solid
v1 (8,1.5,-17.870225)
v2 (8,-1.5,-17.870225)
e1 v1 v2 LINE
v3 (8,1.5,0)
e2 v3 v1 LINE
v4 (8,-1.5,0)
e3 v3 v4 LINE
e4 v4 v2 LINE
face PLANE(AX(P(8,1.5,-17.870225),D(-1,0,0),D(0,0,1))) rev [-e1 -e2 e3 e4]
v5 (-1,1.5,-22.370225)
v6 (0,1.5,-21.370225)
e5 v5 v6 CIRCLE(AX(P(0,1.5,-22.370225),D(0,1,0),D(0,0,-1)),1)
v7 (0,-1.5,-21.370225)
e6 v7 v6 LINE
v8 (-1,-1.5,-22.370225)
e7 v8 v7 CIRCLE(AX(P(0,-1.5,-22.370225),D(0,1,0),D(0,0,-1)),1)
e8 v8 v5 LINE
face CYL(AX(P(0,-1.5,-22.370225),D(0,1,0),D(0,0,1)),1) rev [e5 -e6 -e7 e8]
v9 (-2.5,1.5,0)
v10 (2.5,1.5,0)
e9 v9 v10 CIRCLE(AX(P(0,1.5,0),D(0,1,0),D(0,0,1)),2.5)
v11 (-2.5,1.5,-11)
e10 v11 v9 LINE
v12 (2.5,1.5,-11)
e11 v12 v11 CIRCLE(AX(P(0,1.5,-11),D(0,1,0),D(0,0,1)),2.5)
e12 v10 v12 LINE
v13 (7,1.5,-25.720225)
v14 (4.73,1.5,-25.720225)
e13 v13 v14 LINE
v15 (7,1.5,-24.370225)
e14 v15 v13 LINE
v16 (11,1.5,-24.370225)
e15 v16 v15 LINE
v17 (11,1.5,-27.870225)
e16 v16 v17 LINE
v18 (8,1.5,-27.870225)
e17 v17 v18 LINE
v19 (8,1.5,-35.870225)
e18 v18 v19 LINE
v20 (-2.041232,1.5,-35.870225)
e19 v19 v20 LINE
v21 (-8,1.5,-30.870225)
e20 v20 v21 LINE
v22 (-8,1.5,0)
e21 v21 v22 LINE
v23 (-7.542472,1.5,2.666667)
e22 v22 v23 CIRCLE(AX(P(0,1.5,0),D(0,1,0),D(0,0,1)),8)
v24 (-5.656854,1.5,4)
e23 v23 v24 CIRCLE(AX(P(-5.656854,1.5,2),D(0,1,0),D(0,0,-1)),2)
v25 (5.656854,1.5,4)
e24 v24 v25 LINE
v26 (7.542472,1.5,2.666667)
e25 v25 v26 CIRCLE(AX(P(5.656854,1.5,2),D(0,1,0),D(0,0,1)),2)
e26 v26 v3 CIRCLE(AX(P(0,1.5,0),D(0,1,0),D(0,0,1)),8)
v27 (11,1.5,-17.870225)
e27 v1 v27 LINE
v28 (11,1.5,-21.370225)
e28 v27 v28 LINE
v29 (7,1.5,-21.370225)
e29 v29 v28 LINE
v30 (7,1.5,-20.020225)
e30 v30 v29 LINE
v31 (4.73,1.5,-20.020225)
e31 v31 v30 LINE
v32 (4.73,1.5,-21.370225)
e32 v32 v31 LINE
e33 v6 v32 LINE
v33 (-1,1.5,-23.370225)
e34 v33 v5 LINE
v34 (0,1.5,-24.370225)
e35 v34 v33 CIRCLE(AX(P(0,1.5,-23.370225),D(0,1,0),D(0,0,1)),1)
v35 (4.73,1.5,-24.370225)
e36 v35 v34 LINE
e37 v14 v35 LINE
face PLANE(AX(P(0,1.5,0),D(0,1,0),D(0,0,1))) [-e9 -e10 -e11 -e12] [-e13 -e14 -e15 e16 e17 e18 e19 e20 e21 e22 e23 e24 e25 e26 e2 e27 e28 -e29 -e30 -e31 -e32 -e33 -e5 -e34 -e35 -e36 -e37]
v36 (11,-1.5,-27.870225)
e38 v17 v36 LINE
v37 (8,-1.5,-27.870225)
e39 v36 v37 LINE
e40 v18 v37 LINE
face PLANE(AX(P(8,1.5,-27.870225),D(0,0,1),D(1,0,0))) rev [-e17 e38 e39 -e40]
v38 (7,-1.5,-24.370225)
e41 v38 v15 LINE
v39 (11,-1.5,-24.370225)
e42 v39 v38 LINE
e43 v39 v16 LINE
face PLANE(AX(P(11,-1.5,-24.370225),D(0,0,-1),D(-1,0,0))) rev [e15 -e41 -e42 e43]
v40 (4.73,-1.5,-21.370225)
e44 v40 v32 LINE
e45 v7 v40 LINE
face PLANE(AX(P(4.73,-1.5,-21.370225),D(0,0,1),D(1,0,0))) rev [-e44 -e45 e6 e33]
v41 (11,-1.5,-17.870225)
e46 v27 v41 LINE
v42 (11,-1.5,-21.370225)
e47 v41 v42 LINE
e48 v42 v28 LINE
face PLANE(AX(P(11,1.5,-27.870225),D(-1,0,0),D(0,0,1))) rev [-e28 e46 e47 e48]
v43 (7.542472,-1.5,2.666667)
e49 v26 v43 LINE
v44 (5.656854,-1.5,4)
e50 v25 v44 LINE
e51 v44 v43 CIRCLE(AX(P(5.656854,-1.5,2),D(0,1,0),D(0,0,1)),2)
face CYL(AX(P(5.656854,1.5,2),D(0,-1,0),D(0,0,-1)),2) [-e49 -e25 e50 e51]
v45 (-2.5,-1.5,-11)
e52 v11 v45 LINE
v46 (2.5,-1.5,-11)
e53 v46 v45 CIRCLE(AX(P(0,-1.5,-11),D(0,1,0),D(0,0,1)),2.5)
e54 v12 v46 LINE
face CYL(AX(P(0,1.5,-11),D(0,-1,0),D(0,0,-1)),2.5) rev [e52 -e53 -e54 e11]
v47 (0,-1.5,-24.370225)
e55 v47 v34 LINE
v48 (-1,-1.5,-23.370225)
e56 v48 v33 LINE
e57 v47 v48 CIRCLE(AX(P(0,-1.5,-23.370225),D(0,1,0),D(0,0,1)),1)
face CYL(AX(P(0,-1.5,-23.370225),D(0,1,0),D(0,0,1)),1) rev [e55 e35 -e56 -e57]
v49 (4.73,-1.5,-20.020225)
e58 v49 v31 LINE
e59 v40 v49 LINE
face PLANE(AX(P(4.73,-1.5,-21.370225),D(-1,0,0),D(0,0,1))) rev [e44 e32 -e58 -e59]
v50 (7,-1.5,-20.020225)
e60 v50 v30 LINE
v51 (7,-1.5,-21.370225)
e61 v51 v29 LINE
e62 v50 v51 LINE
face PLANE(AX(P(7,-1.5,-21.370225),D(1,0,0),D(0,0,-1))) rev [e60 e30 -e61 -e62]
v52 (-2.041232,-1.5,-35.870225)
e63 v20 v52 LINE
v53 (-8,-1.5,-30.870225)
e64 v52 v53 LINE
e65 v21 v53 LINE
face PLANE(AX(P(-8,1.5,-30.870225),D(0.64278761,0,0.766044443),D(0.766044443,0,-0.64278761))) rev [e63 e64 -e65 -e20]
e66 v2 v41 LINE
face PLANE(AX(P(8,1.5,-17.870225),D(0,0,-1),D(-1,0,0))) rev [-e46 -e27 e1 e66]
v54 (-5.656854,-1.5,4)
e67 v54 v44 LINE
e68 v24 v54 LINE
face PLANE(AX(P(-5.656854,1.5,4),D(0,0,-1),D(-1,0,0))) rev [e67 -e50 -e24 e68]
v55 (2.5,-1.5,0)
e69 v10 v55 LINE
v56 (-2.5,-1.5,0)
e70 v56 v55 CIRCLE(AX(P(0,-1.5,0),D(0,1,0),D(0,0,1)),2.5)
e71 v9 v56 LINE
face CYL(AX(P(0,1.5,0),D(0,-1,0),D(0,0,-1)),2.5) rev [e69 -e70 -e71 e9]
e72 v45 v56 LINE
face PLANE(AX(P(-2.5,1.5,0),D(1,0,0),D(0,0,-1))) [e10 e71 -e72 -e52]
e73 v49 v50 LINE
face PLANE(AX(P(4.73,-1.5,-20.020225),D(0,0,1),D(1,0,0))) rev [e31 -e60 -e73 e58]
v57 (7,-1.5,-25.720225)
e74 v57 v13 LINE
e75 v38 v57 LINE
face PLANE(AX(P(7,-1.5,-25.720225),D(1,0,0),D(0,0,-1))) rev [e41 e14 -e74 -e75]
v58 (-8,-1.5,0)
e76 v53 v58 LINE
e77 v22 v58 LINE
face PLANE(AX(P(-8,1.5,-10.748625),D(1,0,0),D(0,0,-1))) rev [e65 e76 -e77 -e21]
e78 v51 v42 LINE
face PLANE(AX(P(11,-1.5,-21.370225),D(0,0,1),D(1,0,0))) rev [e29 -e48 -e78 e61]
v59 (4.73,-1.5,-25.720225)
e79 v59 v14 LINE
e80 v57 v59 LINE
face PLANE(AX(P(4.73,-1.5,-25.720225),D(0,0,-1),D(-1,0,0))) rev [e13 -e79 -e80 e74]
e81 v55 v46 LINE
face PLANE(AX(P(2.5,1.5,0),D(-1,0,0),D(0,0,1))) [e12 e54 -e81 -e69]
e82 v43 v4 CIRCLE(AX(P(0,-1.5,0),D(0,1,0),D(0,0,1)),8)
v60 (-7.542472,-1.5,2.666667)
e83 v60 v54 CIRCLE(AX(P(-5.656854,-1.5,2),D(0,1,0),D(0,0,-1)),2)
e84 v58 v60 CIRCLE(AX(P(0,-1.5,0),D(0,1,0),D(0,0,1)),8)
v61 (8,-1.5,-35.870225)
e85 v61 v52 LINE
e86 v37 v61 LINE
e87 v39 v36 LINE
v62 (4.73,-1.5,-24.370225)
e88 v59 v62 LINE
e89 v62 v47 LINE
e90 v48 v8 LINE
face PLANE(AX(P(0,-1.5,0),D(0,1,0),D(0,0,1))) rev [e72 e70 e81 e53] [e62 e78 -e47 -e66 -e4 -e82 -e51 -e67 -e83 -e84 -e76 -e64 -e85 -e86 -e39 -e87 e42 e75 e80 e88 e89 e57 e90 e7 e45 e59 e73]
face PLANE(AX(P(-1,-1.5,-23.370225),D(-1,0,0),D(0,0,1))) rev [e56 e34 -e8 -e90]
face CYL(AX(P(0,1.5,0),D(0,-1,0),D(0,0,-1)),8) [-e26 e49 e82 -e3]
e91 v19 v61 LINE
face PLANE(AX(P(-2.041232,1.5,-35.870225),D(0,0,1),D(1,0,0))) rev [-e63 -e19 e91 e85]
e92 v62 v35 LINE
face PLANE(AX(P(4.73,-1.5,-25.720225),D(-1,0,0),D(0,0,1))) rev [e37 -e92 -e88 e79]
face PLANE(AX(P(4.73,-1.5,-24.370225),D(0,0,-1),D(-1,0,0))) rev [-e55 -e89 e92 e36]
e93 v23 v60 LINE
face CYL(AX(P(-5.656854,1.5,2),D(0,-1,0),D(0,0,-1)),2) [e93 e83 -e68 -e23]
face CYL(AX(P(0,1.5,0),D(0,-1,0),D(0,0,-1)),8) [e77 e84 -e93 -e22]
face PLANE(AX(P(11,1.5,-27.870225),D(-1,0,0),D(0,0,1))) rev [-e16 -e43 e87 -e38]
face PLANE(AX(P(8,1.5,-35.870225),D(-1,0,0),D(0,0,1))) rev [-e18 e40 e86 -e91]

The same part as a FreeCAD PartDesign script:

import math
import FreeCAD as App
import Part
import Sketcher
Q = App.Units.Quantity

doc = App.newDocument("Part")
body = doc.addObject("PartDesign::Body", "Body")

# Sketch on XZ plane
sketch1 = doc.addObject("Sketcher::SketchObject", "Sketch")
body.addObject(sketch1)
sketch1.AttachmentSupport = (doc.XZ_Plane, [""])
sketch1.MapMode = "FlatFace"
sketch1.addGeometry([
    Part.LineSegment(App.Vector(-2, -35.9, 0), App.Vector(-8, -30.9, 0)),  # 0
    Part.LineSegment(App.Vector(-8, -30.9, 0), App.Vector(-8, 0, 0)),  # 1
    Part.ArcOfCircle(Part.Circle(App.Vector(0, 0, 0), App.Vector(0, 0, 1), 8), math.radians(160.53), math.radians(180)),  # 2
    Part.ArcOfCircle(Part.Circle(App.Vector(-5.7, 2, 0), App.Vector(0, 0, 1), 2), math.radians(90), math.radians(161)),  # 3
    Part.LineSegment(App.Vector(-5.7, 4, 0), App.Vector(5.7, 4, 0)),  # 4
    Part.ArcOfCircle(Part.Circle(App.Vector(5.7, 2, 0), App.Vector(0, 0, 1), 2), math.radians(19), math.radians(90)),  # 5
    Part.ArcOfCircle(Part.Circle(App.Vector(0, 0, 0), App.Vector(0, 0, 1), 8), math.radians(0), math.radians(19.47)),  # 6
    Part.LineSegment(App.Vector(8, 0, 0), App.Vector(8, -17.9, 0)),  # 7
    Part.LineSegment(App.Vector(8, -17.9, 0), App.Vector(11, -17.9, 0)),  # 8
    Part.LineSegment(App.Vector(11, -17.9, 0), App.Vector(11, -27.9, 0)),  # 9
    Part.LineSegment(App.Vector(11, -27.9, 0), App.Vector(8, -27.9, 0)),  # 10
    Part.LineSegment(App.Vector(8, -27.9, 0), App.Vector(8, -35.9, 0)),  # 11
    Part.LineSegment(App.Vector(8, -35.9, 0), App.Vector(-2, -35.9, 0)),  # 12
    Part.LineSegment(App.Vector(-2.5, 0, 0), App.Vector(-2.5, -11, 0)),  # 13
    Part.ArcOfCircle(Part.Circle(App.Vector(0, -11, 0), App.Vector(0, 0, 1), 2.5), math.radians(180), math.radians(360)),  # 14
    Part.LineSegment(App.Vector(2.5, -11, 0), App.Vector(2.5, 0, 0)),  # 15
    Part.ArcOfCircle(Part.Circle(App.Vector(0, 0, 0), App.Vector(0, 0, 1), 2.5), math.radians(0), math.radians(180)),  # 16
], False)
sketch1.addConstraint([
    Sketcher.Constraint("Coincident", 0, 2, 1, 1),
    Sketcher.Constraint("Tangent", 1, 2, 2, 2),
    Sketcher.Constraint("Tangent", 2, 1, 3, 2),
    Sketcher.Constraint("Tangent", 3, 1, 4, 1),
    Sketcher.Constraint("Tangent", 4, 2, 5, 2),
    Sketcher.Constraint("Tangent", 5, 1, 6, 2),
    Sketcher.Constraint("Tangent", 6, 1, 7, 1),
    Sketcher.Constraint("Coincident", 7, 2, 8, 1),
    Sketcher.Constraint("Coincident", 8, 2, 9, 1),
    Sketcher.Constraint("Coincident", 9, 2, 10, 1),
    Sketcher.Constraint("Coincident", 10, 2, 11, 1),
    Sketcher.Constraint("Coincident", 11, 2, 12, 1),
    Sketcher.Constraint("Coincident", 12, 2, 0, 1),
    Sketcher.Constraint("Tangent", 13, 2, 14, 1),
    Sketcher.Constraint("Tangent", 14, 2, 15, 1),
    Sketcher.Constraint("Tangent", 15, 2, 16, 1),
    Sketcher.Constraint("Tangent", 16, 2, 13, 1),
    Sketcher.Constraint("Vertical", 1),
    Sketcher.Constraint("Horizontal", 4),
    Sketcher.Constraint("Vertical", 7),
    Sketcher.Constraint("Horizontal", 8),
    Sketcher.Constraint("Vertical", 9),
    Sketcher.Constraint("Horizontal", 10),
    Sketcher.Constraint("Vertical", 11),
    Sketcher.Constraint("Horizontal", 12),
    Sketcher.Constraint("Vertical", 13),
    Sketcher.Constraint("Vertical", 15),
    Sketcher.Constraint("Coincident", 2, 3, -1, 1),
    Sketcher.Constraint("Coincident", 6, 3, -1, 1),
    Sketcher.Constraint("Coincident", 16, 3, -1, 1),
    Sketcher.Constraint("Equal", 3, 5),
    Sketcher.Constraint("Equal", 2, 6),
    Sketcher.Constraint("Vertical", 7, 2, 10, 2),
    Sketcher.Constraint("Radius", 2, Q("8 mm")),
    Sketcher.Constraint("Radius", 3, Q("2 mm")),
    Sketcher.Constraint("Radius", 14, Q("2.5 mm")),
    Sketcher.Constraint("DistanceX", 8, 1, 8, 2, Q("3 mm")),
    Sketcher.Constraint("DistanceY", 9, 2, 9, 1, Q("10 mm")),
    Sketcher.Constraint("DistanceY", 11, 2, 11, 1, Q("8 mm")),
    Sketcher.Constraint("DistanceY", 13, 2, 13, 1, Q("11 mm")),
    Sketcher.Constraint("Angle", 0, Q("140 deg")),
    Sketcher.Constraint("DistanceY", -1, 1, 3, 3, Q("2 mm")),
    Sketcher.Constraint("DistanceY", 0, 2, 9, 2, Q("3 mm")),
    Sketcher.Constraint("DistanceY", 1, 1, 1, 2, Q("30.870225 mm")),
])
pad1 = doc.addObject("PartDesign::Pad", "Pad")
body.addObject(pad1)
pad1.Profile = sketch1
pad1.Length = 3
pad1.Midplane = True

# Sketch on XZ plane
sketch2 = doc.addObject("Sketcher::SketchObject", "Sketch001")
body.addObject(sketch2)
sketch2.AttachmentSupport = (doc.XZ_Plane, [""])
sketch2.MapMode = "FlatFace"
sketch2.addGeometry([
    Part.LineSegment(App.Vector(11, -24.4, 0), App.Vector(7, -24.4, 0)),  # 0
    Part.LineSegment(App.Vector(7, -24.4, 0), App.Vector(7, -25.7, 0)),  # 1
    Part.LineSegment(App.Vector(7, -25.7, 0), App.Vector(4.7, -25.7, 0)),  # 2
    Part.LineSegment(App.Vector(4.7, -25.7, 0), App.Vector(4.7, -24.4, 0)),  # 3
    Part.LineSegment(App.Vector(4.7, -24.4, 0), App.Vector(0, -24.4, 0)),  # 4
    Part.ArcOfCircle(Part.Circle(App.Vector(0, -23.4, 0), App.Vector(0, 0, 1), 1), math.radians(-180), math.radians(-90)),  # 5
    Part.LineSegment(App.Vector(-1, -23.4, 0), App.Vector(-1, -22.4, 0)),  # 6
    Part.ArcOfCircle(Part.Circle(App.Vector(0, -22.4, 0), App.Vector(0, 0, 1), 1), math.radians(90), math.radians(180)),  # 7
    Part.LineSegment(App.Vector(0, -21.4, 0), App.Vector(4.7, -21.4, 0)),  # 8
    Part.LineSegment(App.Vector(4.7, -21.4, 0), App.Vector(4.7, -20, 0)),  # 9
    Part.LineSegment(App.Vector(4.7, -20, 0), App.Vector(7, -20, 0)),  # 10
    Part.LineSegment(App.Vector(7, -20, 0), App.Vector(7, -21.4, 0)),  # 11
    Part.LineSegment(App.Vector(7, -21.4, 0), App.Vector(11, -21.4, 0)),  # 12
    Part.LineSegment(App.Vector(11, -21.4, 0), App.Vector(11, -24.4, 0)),  # 13
], False)
sketch2.addConstraint([
    Sketcher.Constraint("Coincident", 0, 2, 1, 1),
    Sketcher.Constraint("Coincident", 1, 2, 2, 1),
    Sketcher.Constraint("Coincident", 2, 2, 3, 1),
    Sketcher.Constraint("Coincident", 3, 2, 4, 1),
    Sketcher.Constraint("Tangent", 4, 2, 5, 2),
    Sketcher.Constraint("Tangent", 5, 1, 6, 1),
    Sketcher.Constraint("Tangent", 6, 2, 7, 2),
    Sketcher.Constraint("Tangent", 7, 1, 8, 1),
    Sketcher.Constraint("Coincident", 8, 2, 9, 1),
    Sketcher.Constraint("Coincident", 9, 2, 10, 1),
    Sketcher.Constraint("Coincident", 10, 2, 11, 1),
    Sketcher.Constraint("Coincident", 11, 2, 12, 1),
    Sketcher.Constraint("Coincident", 12, 2, 13, 1),
    Sketcher.Constraint("Coincident", 13, 2, 0, 1),
    Sketcher.Constraint("Horizontal", 0),
    Sketcher.Constraint("Vertical", 1),
    Sketcher.Constraint("Horizontal", 2),
    Sketcher.Constraint("Vertical", 3),
    Sketcher.Constraint("Horizontal", 4),
    Sketcher.Constraint("Vertical", 6),
    Sketcher.Constraint("Horizontal", 8),
    Sketcher.Constraint("Vertical", 9),
    Sketcher.Constraint("Horizontal", 10),
    Sketcher.Constraint("Vertical", 11),
    Sketcher.Constraint("Horizontal", 12),
    Sketcher.Constraint("Vertical", 13),
    Sketcher.Constraint("Equal", 5, 7),
    Sketcher.Constraint("PointOnObject", 5, 3, -2),
    Sketcher.Constraint("Horizontal", 0, 2, 3, 2),
    Sketcher.Constraint("Horizontal", 8, 2, 11, 2),
    Sketcher.Constraint("Vertical", 3, 2, 8, 2),
    Sketcher.Constraint("Vertical", 1, 2, 10, 2),
    Sketcher.Constraint("Equal", 3, 9),
    Sketcher.Constraint("Radius", 5, Q("1 mm")),
    Sketcher.Constraint("DistanceX", 0, 2, 0, 1, Q("4 mm")),
    Sketcher.Constraint("DistanceY", 6, 1, 6, 2, Q("1 mm")),
    Sketcher.Constraint("DistanceX", -1, 1, 0, 2, Q("7 mm")),
    Sketcher.Constraint("DistanceX", 2, 2, 2, 1, Q("2.27 mm")),
    Sketcher.Constraint("DistanceY", 1, 2, 1, 1, Q("1.35 mm")),
    Sketcher.Constraint("DistanceY", 5, 3, -1, 1, Q("23.370225 mm")),
])
pocket1 = doc.addObject("PartDesign::Pocket", "Pocket")
body.addObject(pocket1)
pocket1.Profile = sketch2
pocket1.Type = "ThroughAll"
pocket1.Midplane = True

doc.recompute()
